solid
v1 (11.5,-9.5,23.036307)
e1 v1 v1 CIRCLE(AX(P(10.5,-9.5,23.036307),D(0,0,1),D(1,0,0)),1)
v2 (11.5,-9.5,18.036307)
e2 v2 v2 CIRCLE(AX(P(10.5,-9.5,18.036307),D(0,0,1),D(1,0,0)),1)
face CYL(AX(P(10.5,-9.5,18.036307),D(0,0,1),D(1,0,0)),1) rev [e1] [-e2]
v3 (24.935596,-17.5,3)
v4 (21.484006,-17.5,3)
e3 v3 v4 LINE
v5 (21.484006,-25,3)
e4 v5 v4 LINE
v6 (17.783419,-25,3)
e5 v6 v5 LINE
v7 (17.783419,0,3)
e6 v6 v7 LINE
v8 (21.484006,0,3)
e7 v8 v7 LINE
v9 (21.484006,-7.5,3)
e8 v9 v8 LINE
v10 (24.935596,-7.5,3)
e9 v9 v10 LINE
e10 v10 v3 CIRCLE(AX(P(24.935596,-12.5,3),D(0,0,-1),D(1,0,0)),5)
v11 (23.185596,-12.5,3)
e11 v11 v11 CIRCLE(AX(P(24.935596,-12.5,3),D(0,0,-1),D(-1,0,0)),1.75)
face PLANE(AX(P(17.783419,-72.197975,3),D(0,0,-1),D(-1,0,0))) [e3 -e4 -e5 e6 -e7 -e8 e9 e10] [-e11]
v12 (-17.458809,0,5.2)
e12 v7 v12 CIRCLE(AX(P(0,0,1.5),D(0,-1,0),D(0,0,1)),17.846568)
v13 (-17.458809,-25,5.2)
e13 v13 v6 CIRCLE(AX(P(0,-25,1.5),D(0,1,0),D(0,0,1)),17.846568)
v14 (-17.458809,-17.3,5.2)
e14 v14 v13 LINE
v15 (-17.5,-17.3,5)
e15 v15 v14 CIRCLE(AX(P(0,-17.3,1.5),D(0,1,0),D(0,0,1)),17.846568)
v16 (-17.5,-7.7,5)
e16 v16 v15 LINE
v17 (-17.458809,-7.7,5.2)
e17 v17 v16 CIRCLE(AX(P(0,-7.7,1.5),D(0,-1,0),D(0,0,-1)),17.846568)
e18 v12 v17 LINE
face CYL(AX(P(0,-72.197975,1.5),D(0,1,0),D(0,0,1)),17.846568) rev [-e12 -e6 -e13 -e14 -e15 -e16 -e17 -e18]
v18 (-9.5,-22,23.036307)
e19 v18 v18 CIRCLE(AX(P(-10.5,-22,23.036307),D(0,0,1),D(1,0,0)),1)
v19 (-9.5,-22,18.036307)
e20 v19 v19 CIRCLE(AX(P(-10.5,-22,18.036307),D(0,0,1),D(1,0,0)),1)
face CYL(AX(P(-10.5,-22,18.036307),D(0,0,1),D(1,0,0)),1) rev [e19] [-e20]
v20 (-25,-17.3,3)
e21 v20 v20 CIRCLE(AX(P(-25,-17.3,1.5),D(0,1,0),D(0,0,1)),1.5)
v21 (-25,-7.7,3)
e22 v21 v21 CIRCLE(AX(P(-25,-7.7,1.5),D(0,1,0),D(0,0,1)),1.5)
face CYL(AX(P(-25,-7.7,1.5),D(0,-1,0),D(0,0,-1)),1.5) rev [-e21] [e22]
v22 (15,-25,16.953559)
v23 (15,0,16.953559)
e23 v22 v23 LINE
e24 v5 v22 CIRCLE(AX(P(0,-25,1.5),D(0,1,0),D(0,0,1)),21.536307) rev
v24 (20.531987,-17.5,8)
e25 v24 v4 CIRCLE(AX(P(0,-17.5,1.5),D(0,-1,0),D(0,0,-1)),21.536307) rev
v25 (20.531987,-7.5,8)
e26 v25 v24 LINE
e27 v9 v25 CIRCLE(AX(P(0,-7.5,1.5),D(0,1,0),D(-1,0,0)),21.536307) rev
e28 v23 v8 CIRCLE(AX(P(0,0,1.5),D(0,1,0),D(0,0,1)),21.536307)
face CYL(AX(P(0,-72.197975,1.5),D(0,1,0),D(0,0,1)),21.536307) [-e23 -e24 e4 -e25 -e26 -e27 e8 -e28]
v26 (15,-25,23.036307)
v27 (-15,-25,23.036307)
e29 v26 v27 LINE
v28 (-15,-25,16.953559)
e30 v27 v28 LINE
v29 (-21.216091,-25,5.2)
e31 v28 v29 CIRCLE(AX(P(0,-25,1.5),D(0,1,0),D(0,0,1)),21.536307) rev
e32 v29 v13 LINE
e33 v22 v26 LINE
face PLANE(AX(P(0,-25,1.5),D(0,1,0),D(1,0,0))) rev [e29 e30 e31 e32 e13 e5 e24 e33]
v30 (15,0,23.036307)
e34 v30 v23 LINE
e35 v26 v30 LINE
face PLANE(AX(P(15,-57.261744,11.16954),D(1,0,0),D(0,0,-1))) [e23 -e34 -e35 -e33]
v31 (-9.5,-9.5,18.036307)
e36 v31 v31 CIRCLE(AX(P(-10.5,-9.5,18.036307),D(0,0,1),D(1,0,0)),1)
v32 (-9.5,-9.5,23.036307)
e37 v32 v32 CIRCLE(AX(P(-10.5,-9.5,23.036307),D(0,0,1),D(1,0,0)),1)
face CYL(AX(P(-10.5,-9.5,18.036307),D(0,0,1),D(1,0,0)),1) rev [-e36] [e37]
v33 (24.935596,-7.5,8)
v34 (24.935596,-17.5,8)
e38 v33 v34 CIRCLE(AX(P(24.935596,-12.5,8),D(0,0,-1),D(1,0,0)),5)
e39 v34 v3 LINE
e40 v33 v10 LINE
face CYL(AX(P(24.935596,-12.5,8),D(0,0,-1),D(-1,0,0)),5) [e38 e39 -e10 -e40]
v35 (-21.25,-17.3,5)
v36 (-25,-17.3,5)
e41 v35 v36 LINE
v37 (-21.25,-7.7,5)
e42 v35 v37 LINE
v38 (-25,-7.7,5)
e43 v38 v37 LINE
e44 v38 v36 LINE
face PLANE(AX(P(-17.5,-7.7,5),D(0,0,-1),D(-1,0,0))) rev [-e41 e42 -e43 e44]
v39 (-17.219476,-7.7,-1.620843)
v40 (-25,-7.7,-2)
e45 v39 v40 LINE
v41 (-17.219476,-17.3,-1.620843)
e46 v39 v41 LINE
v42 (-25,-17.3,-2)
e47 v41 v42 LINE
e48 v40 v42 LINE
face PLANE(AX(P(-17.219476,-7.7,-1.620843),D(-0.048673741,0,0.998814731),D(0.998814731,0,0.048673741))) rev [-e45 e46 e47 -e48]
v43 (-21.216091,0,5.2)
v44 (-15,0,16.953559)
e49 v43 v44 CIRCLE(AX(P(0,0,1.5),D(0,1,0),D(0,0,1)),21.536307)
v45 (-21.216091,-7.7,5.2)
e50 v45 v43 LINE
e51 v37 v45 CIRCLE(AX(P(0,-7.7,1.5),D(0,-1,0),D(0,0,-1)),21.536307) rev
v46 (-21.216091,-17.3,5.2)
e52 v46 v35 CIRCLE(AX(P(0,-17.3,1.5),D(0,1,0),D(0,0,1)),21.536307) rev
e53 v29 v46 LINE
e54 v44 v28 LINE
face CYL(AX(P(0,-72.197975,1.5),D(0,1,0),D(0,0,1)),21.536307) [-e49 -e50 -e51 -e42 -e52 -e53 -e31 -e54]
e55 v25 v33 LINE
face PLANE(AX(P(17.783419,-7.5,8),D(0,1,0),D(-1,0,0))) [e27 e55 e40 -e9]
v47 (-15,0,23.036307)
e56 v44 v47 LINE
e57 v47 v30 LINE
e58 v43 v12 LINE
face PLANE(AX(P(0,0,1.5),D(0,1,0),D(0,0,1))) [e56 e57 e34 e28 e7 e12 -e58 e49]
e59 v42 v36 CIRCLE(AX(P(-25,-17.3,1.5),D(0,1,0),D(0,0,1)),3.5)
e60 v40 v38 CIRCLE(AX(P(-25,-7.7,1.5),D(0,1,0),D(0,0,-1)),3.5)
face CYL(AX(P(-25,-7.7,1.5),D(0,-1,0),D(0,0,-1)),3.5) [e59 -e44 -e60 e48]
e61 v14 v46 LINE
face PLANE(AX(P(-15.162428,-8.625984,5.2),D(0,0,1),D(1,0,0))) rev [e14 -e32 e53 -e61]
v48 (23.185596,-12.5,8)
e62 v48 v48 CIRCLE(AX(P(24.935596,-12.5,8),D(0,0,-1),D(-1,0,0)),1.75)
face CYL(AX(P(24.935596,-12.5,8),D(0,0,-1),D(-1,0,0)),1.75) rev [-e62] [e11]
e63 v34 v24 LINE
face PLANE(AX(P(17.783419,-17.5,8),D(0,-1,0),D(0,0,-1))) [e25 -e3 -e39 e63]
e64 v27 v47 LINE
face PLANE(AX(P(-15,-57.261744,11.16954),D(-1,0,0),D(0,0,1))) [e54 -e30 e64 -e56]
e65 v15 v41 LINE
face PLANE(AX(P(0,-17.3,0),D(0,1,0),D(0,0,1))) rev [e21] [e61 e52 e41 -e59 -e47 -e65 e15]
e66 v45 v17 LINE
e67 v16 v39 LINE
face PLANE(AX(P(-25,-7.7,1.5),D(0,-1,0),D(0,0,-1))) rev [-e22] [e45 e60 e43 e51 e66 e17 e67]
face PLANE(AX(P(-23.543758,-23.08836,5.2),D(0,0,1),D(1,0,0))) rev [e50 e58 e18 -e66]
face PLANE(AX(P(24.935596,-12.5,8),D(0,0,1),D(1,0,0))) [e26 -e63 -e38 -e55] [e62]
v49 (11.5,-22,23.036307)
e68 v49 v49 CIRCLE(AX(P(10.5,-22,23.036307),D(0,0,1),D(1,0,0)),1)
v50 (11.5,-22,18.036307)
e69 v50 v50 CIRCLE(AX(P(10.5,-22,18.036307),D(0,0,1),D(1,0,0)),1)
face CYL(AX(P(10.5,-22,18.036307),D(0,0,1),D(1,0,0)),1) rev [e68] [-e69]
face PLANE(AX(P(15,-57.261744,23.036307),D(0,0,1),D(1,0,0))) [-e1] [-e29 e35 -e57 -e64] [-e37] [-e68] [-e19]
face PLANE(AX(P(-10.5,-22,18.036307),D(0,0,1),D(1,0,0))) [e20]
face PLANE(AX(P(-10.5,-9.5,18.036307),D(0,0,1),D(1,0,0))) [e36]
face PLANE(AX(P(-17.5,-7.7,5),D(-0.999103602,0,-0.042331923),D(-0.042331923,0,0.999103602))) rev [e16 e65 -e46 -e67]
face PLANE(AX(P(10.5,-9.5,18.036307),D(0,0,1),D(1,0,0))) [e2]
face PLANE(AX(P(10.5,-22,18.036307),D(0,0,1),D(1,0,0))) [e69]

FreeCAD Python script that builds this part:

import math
import FreeCAD as App
import Part
import Sketcher
from FreeCAD import Vector

doc = App.newDocument("Part")
body = doc.addObject("PartDesign::Body", "Body")

sketch1 = doc.addObject("Sketcher::SketchObject", "Sketch")
body.addObject(sketch1)
sketch1.AttachmentSupport = (doc.XZ_Plane, [""])
sketch1.MapMode = "FlatFace"
sketch1.addGeometry(Part.LineSegment(Vector(21.5, 3, 0), Vector(17.8, 3, 0)), False)
sketch1.addGeometry(Part.ArcOfCircle(Part.Circle(Vector(0, 1.5, 0), Vector(0, 0, 1), 17.8), math.radians(5), math.radians(169)), False)
sketch1.addGeometry(Part.LineSegment(Vector(-17.5, 5, 0), Vector(-21.2, 5, 0)), False)
sketch1.addGeometry(Part.ArcOfCircle(Part.Circle(Vector(0, 1.5, 0), Vector(0, 0, 1), 21.5), math.radians(4), math.radians(171)), False)
sketch1.addConstraint(Sketcher.Constraint("Coincident", 0, 2, 1, 1))
sketch1.addConstraint(Sketcher.Constraint("Coincident", 1, 2, 2, 1))
sketch1.addConstraint(Sketcher.Constraint("Coincident", 2, 2, 3, 2))
sketch1.addConstraint(Sketcher.Constraint("Coincident", 3, 1, 0, 1))
sketch1.addConstraint(Sketcher.Constraint("Horizontal", 0))
sketch1.addConstraint(Sketcher.Constraint("Horizontal", 2))
sketch1.addConstraint(Sketcher.Constraint("Coincident", 3, 3, 1, 3))
sketch1.addConstraint(Sketcher.Constraint("PointOnObject", 1, 3, -2))
sketch1.addConstraint(Sketcher.Constraint("DistanceY", -1, 1, 0, 2, 3.0))
sketch1.addConstraint(Sketcher.Constraint("DistanceY", -1, 1, 1, 2, 5.0))
sketch1.addConstraint(Sketcher.Constraint("DistanceX", 2, 2, 2, 1, 3.75))
sketch1.addConstraint(Sketcher.Constraint("DistanceY", -1, 1, 1, 3, 1.5))
sketch1.addConstraint(Sketcher.Constraint("DistanceX", 1, 2, -1, 1, 17.5))
pad1 = doc.addObject("PartDesign::Pad", "Pad")
body.addObject(pad1)
pad1.Profile = sketch1
pad1.Length = 25

sketch2 = doc.addObject("Sketcher::SketchObject", "Sketch001")
body.addObject(sketch2)
sketch2.AttachmentSupport = (doc.XZ_Plane, [""])
sketch2.MapMode = "FlatFace"
sketch2.AttachmentOffset = App.Placement(Vector(0, 0, 17.5), App.Rotation())
sketch2.addGeometry(Part.LineSegment(Vector(-25, 5, 0), Vector(-17.5, 5, 0)), False)
sketch2.addGeometry(Part.LineSegment(Vector(-17.5, 5, 0), Vector(-17.2, -1.6, 0)), False)
sketch2.addGeometry(Part.LineSegment(Vector(-17.2, -1.6, 0), Vector(-25, -2, 0)), False)
sketch2.addGeometry(Part.ArcOfCircle(Part.Circle(Vector(-25, 1.5, 0), Vector(0, 0, 1), 3.5), math.radians(90), math.radians(270)), False)
sketch2.addGeometry(Part.Circle(Vector(-25, 1.5, 0), Vector(0, 0, 1), 1.5), False)
sketch2.addConstraint(Sketcher.Constraint("Coincident", 0, 2, 1, 1))
sketch2.addConstraint(Sketcher.Constraint("Coincident", 1, 2, 2, 1))
sketch2.addConstraint(Sketcher.Constraint("Coincident", 2, 2, 3, 2))
sketch2.addConstraint(Sketcher.Constraint("Tangent", 3, 1, 0, 1))
sketch2.addConstraint(Sketcher.Constraint("Horizontal", 0))
sketch2.addConstraint(Sketcher.Constraint("Coincident", 4, 3, 3, 3))
sketch2.addConstraint(Sketcher.Constraint("Vertical", 4, 3, 2, 2))
sketch2.addConstraint(Sketcher.Constraint("Diameter", 4, 3.0))
sketch2.addConstraint(Sketcher.Constraint("Radius", 3, 3.5))
sketch2.addConstraint(Sketcher.Constraint("DistanceX", 0, 1, 0, 2, 7.5))
sketch2.addConstraint(Sketcher.Constraint("DistanceX", 3, 3, -1, 1, 25.0))
sketch2.addConstraint(Sketcher.Constraint("DistanceY", -1, 1, 0, 2, 5.0))
sketch2.addConstraint(Sketcher.Constraint("Distance", 1, 6.626784))
sketch2.addConstraint(Sketcher.Constraint("Distance", 2, 7.789757))
pad2 = doc.addObject("PartDesign::Pad", "Pad001")
body.addObject(pad2)
pad2.Profile = sketch2
pad2.Length = 9.8
pad2.Reversed = True

sketch3 = doc.addObject("Sketcher::SketchObject", "Sketch002")
body.addObject(sketch3)
sketch3.AttachmentSupport = (doc.XZ_Plane, [""])
sketch3.MapMode = "FlatFace"
sketch3.AttachmentOffset = App.Placement(Vector(0, 0, 17.5), App.Rotation())
sketch3.addGeometry(Part.LineSegment(Vector(-42, 5, 0), Vector(-42, -13, 0)), False)
sketch3.addGeometry(Part.LineSegment(Vector(-42, -13, 0), Vector(-11, -13, 0)), False)
sketch3.addGeometry(Part.LineSegment(Vector(-11, -13, 0), Vector(-11, 5, 0)), False)
sketch3.addGeometry(Part.LineSegment(Vector(-11, 5, 0), Vector(-42, 5, 0)), False)
sketch3.addConstraint(Sketcher.Constraint("Coincident", 0, 2, 1, 1))
sketch3.addConstraint(Sketcher.Constraint("Coincident", 1, 2, 2, 1))
sketch3.addConstraint(Sketcher.Constraint("Coincident", 2, 2, 3, 1))
sketch3.addConstraint(Sketcher.Constraint("Coincident", 3, 2, 0, 1))
sketch3.addConstraint(Sketcher.Constraint("Vertical", 0))
sketch3.addConstraint(Sketcher.Constraint("Horizontal", 1))
sketch3.addConstraint(Sketcher.Constraint("Vertical", 2))
sketch3.addConstraint(Sketcher.Constraint("Horizontal", 3))
sketch3.addConstraint(Sketcher.Constraint("DistanceY", -1, 1, 2, 2, 5.0))
sketch3.addConstraint(Sketcher.Constraint("DistanceX", 1, 1, 1, 2, 31.176754))
sketch3.addConstraint(Sketcher.Constraint("DistanceY", 0, 2, 0, 1, 17.849543))
sketch3.addConstraint(Sketcher.Constraint("DistanceX", 0, 2, -1, 1, 41.871691))
pocket1 = doc.addObject("PartDesign::Pocket", "Pocket")
body.addObject(pocket1)
pocket1.Profile = sketch3
pocket1.Length = 0.2

sketch4 = doc.addObject("Sketcher::SketchObject", "Sketch003")
body.addObject(sketch4)
sketch4.AttachmentSupport = (doc.XY_Plane, [""])
sketch4.MapMode = "FlatFace"
sketch4.AttachmentOffset = App.Placement(Vector(0, 0, 3), App.Rotation())
sketch4.addGeometry(Part.LineSegment(Vector(24.9, -17.5, 0), Vector(17.8, -17.5, 0)), False)
sketch4.addGeometry(Part.LineSegment(Vector(17.8, -17.5, 0), Vector(17.8, -7.5, 0)), False)
sketch4.addGeometry(Part.LineSegment(Vector(17.8, -7.5, 0), Vector(24.9, -7.5, 0)), False)
sketch4.addGeometry(Part.ArcOfCircle(Part.Circle(Vector(24.9, -12.5, 0), Vector(0, 0, 1), 5), math.radians(-90), math.radians(90)), False)
sketch4.addGeometry(Part.Circle(Vector(24.9, -12.5, 0), Vector(0, 0, 1), 1.8), False)
sketch4.addConstraint(Sketcher.Constraint("Coincident", 0, 2, 1, 1))
sketch4.addConstraint(Sketcher.Constraint("Coincident", 1, 2, 2, 1))
sketch4.addConstraint(Sketcher.Constraint("Tangent", 2, 2, 3, 2))
sketch4.addConstraint(Sketcher.Constraint("Tangent", 3, 1, 0, 1))
sketch4.addConstraint(Sketcher.Constraint("Horizontal", 0))
sketch4.addConstraint(Sketcher.Constraint("Vertical", 1))
sketch4.addConstraint(Sketcher.Constraint("Horizontal", 2))
sketch4.addConstraint(Sketcher.Constraint("Coincident", 4, 3, 3, 3))
sketch4.addConstraint(Sketcher.Constraint("Radius", 3, 5.0))
sketch4.addConstraint(Sketcher.Constraint("Diameter", 4, 3.5))
sketch4.addConstraint(Sketcher.Constraint("DistanceY", 3, 3, -1, 1, 12.5))
sketch4.addConstraint(Sketcher.Constraint("DistanceX", 0, 2, 0, 1, 7.152177))
sketch4.addConstraint(Sketcher.Constraint("DistanceX", -1, 1, 0, 2, 17.783419))
pad3 = doc.addObject("PartDesign::Pad", "Pad002")
body.addObject(pad3)
pad3.Profile = sketch4
pad3.Length = 5

sketch5 = doc.addObject("Sketcher::SketchObject", "Sketch004")
body.addObject(sketch5)
sketch5.AttachmentSupport = (doc.XZ_Plane, [""])
sketch5.MapMode = "FlatFace"
sketch5.addGeometry(Part.LineSegment(Vector(-23.5, 1.5, 0), Vector(-23.5, 5.2, 0)), False)
sketch5.addGeometry(Part.LineSegment(Vector(-23.5, 5.2, 0), Vector(-8.6, 5.2, 0)), False)
sketch5.addGeometry(Part.LineSegment(Vector(-8.6, 5.2, 0), Vector(-8.6, 1.5, 0)), False)
sketch5.addGeometry(Part.LineSegment(Vector(-8.6, 1.5, 0), Vector(-23.5, 1.5, 0)), False)
sketch5.addConstraint(Sketcher.Constraint("Coincident", 0, 2, 1, 1))
sketch5.addConstraint(Sketcher.Constraint("Coincident", 1, 2, 2, 1))
sketch5.addConstraint(Sketcher.Constraint("Coincident", 2, 2, 3, 1))
sketch5.addConstraint(Sketcher.Constraint("Coincident", 3, 2, 0, 1))
sketch5.addConstraint(Sketcher.Constraint("Vertical", 0))
sketch5.addConstraint(Sketcher.Constraint("Horizontal", 1))
sketch5.addConstraint(Sketcher.Constraint("Vertical", 2))
sketch5.addConstraint(Sketcher.Constraint("Horizontal", 3))
sketch5.addConstraint(Sketcher.Constraint("DistanceY", -1, 1, 0, 2, 5.2))
sketch5.addConstraint(Sketcher.Constraint("DistanceY", 0, 1, 0, 2, 3.694178))
sketch5.addConstraint(Sketcher.Constraint("DistanceX", 1, 1, 1, 2, 14.938362))
sketch5.addConstraint(Sketcher.Constraint("DistanceX", 0, 2, -1, 1, 23.543758))
pocket2 = doc.addObject("PartDesign::Pocket", "Pocket001")
body.addObject(pocket2)
pocket2.Profile = sketch5
pocket2.Length = 7.7
pocket2.Reversed = True

sketch6 = doc.addObject("Sketcher::SketchObject", "Sketch005")
body.addObject(sketch6)
sketch6.AttachmentSupport = (doc.XZ_Plane, [""])
sketch6.MapMode = "FlatFace"
sketch6.AttachmentOffset = App.Placement(Vector(0, 0, 25), App.Rotation())
sketch6.addGeometry(Part.LineSegment(Vector(-23.1, 5.2, 0), Vector(-23.1, 1.8, 0)), False)
sketch6.addGeometry(Part.LineSegment(Vector(-23.1, 1.8, 0), Vector(-15.2, 1.8, 0)), False)
sketch6.addGeometry(Part.LineSegment(Vector(-15.2, 1.8, 0), Vector(-15.2, 5.2, 0)), False)
sketch6.addGeometry(Part.LineSegment(Vector(-15.2, 5.2, 0), Vector(-23.1, 5.2, 0)), False)
sketch6.addConstraint(Sketcher.Constraint("Coincident", 0, 2, 1, 1))
sketch6.addConstraint(Sketcher.Constraint("Coincident", 1, 2, 2, 1))
sketch6.addConstraint(Sketcher.Constraint("Coincident", 2, 2, 3, 1))
sketch6.addConstraint(Sketcher.Constraint("Coincident", 3, 2, 0, 1))
sketch6.addConstraint(Sketcher.Constraint("Vertical", 0))
sketch6.addConstraint(Sketcher.Constraint("Horizontal", 1))
sketch6.addConstraint(Sketcher.Constraint("Vertical", 2))
sketch6.addConstraint(Sketcher.Constraint("Horizontal", 3))
sketch6.addConstraint(Sketcher.Constraint("DistanceY", -1, 1, 2, 2, 5.2))
sketch6.addConstraint(Sketcher.Constraint("DistanceX", 1, 1, 1, 2, 7.972464))
sketch6.addConstraint(Sketcher.Constraint("DistanceY", 0, 2, 0, 1, 3.417363))
sketch6.addConstraint(Sketcher.Constraint("DistanceX", 1, 2, -1, 1, 15.162428))
pocket3 = doc.addObject("PartDesign::Pocket", "Pocket002")
body.addObject(pocket3)
pocket3.Profile = sketch6
pocket3.Length = 7.7

sketch7 = doc.addObject("Sketcher::SketchObject", "Sketch006")
body.addObject(sketch7)
sketch7.AttachmentSupport = (doc.XZ_Plane, [""])
sketch7.MapMode = "FlatFace"
sketch7.addGeometry(Part.LineSegment(Vector(15, 23, 0), Vector(15, 11, 0)), False)
sketch7.addGeometry(Part.ArcOfCircle(Part.Circle(Vector(0, 2, 0), Vector(0, 0, 1), 18), math.radians(33), math.radians(147)), False)
sketch7.addGeometry(Part.LineSegment(Vector(-15, 11, 0), Vector(-15, 23, 0)), False)
sketch7.addGeometry(Part.LineSegment(Vector(-15, 23, 0), Vector(15, 23, 0)), False)
sketch7.addConstraint(Sketcher.Constraint("Coincident", 0, 2, 1, 1))
sketch7.addConstraint(Sketcher.Constraint("Coincident", 1, 2, 2, 1))
sketch7.addConstraint(Sketcher.Constraint("Coincident", 2, 2, 3, 1))
sketch7.addConstraint(Sketcher.Constraint("Coincident", 3, 2, 0, 1))
sketch7.addConstraint(Sketcher.Constraint("Vertical", 0))
sketch7.addConstraint(Sketcher.Constraint("Vertical", 2))
sketch7.addConstraint(Sketcher.Constraint("Horizontal", 3))
sketch7.addConstraint(Sketcher.Constraint("Symmetric", 0, 2, 1, 2, -2))
sketch7.addConstraint(Sketcher.Constraint("DistanceX", 3, 1, 3, 2, 30.0))
sketch7.addConstraint(Sketcher.Constraint("DistanceY", -1, 1, 1, 3, 1.5))
sketch7.addConstraint(Sketcher.Constraint("Radius", 1, 17.846568))
sketch7.addConstraint(Sketcher.Constraint("DistanceY", 0, 2, 0, 1, 11.866767))
pad4 = doc.addObject("PartDesign::Pad", "Pad003")
body.addObject(pad4)
pad4.Profile = sketch7
pad4.Length = 25

sketch8 = doc.addObject("Sketcher::SketchObject", "Sketch007")
body.addObject(sketch8)
sketch8.AttachmentSupport = (doc.XY_Plane, [""])
sketch8.MapMode = "FlatFace"
sketch8.AttachmentOffset = App.Placement(Vector(0, 0, 23.036307), App.Rotation())
sketch8.addGeometry(Part.Circle(Vector(10.5, -22, 0), Vector(0, 0, 1), 1), False)
sketch8.addGeometry(Part.Circle(Vector(-10.5, -22, 0), Vector(0, 0, 1), 1), False)
sketch8.addGeometry(Part.Circle(Vector(10.5, -9.5, 0), Vector(0, 0, 1), 1), False)
sketch8.addGeometry(Part.Circle(Vector(-10.5, -9.5, 0), Vector(0, 0, 1), 1), False)
sketch8.addConstraint(Sketcher.Constraint("Equal", 0, 1))
sketch8.addConstraint(Sketcher.Constraint("Equal", 1, 2))
sketch8.addConstraint(Sketcher.Constraint("Equal", 2, 3))
sketch8.addConstraint(Sketcher.Constraint("Symmetric", 0, 3, 1, 3, -2))
sketch8.addConstraint(Sketcher.Constraint("Symmetric", 2, 3, 3, 3, -2))
sketch8.addConstraint(Sketcher.Constraint("Vertical", 0, 3, 2, 3))
sketch8.addConstraint(Sketcher.Constraint("Diameter", 0, 2.0))
sketch8.addConstraint(Sketcher.Constraint("DistanceY", 0, 3, -1, 1, 22.0))
sketch8.addConstraint(Sketcher.Constraint("DistanceX", 1, 3, 0, 3, 21.0))
sketch8.addConstraint(Sketcher.Constraint("DistanceY", 2, 3, -1, 1, 9.5))
pocket4 = doc.addObject("PartDesign::Pocket", "Pocket003")
body.addObject(pocket4)
pocket4.Profile = sketch8
pocket4.Length = 5

doc.recompute()
